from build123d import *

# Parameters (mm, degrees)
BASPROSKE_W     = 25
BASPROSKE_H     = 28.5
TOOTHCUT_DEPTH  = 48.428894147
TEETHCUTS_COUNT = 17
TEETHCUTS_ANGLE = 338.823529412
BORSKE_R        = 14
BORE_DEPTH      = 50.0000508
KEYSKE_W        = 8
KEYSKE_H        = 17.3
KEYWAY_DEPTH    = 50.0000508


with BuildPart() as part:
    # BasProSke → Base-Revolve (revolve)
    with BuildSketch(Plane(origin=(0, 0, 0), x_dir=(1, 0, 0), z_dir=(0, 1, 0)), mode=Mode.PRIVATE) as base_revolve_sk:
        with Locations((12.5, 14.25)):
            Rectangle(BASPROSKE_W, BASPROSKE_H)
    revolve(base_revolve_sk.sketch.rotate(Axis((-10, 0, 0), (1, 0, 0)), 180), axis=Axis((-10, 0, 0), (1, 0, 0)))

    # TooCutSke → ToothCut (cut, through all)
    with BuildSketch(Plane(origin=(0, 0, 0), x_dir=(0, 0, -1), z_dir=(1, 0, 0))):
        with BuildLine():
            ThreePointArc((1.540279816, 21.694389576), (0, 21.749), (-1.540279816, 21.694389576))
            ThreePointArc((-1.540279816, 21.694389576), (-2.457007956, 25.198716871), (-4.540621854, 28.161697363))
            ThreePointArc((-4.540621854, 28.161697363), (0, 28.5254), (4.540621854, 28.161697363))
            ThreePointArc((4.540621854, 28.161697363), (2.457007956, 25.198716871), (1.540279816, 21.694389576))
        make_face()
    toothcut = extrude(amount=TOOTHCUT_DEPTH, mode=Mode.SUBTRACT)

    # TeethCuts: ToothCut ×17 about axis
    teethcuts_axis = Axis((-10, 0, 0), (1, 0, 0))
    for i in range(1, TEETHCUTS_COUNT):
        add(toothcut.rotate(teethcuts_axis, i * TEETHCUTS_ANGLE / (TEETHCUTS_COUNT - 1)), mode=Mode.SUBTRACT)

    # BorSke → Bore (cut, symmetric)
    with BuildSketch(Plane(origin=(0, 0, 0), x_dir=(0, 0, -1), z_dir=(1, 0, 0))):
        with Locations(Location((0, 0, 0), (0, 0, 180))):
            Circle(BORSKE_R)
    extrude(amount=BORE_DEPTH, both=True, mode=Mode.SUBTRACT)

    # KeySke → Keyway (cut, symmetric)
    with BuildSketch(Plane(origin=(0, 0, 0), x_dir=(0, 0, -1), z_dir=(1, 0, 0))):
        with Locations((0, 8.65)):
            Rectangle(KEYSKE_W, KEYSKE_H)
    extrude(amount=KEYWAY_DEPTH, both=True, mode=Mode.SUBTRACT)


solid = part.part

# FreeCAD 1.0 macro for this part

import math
import FreeCAD as App
import Part
import Sketcher

V = App.Vector

doc = App.newDocument("Part")
body = doc.addObject("PartDesign::Body", "Body")

sketch1 = body.newObject("Sketcher::SketchObject", "Sketch")
sketch1.AttachmentSupport = (doc.getObject("XZ_Plane"), [""])
sketch1.MapMode = "FlatFace"
sketch1.addGeometry(Part.LineSegment(V(0, -28, 0), V(0, 0, 0)), False)
sketch1.addGeometry(Part.LineSegment(V(0, 0, 0), V(25, 0, 0)), False)
sketch1.addGeometry(Part.LineSegment(V(25, 0, 0), V(25, -28, 0)), False)
sketch1.addGeometry(Part.LineSegment(V(25, -28, 0), V(0, -28, 0)), False)
sketch1.addConstraint(Sketcher.Constraint("Coincident", 0, 2, 1, 1))
sketch1.addConstraint(Sketcher.Constraint("Coincident", 1, 2, 2, 1))
sketch1.addConstraint(Sketcher.Constraint("Coincident", 2, 2, 3, 1))
sketch1.addConstraint(Sketcher.Constraint("Coincident", 3, 2, 0, 1))
sketch1.addConstraint(Sketcher.Constraint("Vertical", 0))
sketch1.addConstraint(Sketcher.Constraint("Horizontal", 1))
sketch1.addConstraint(Sketcher.Constraint("Vertical", 2))
sketch1.addConstraint(Sketcher.Constraint("Horizontal", 3))
sketch1.addConstraint(Sketcher.Constraint("Coincident", 0, 2, -1, 1))
sketch1.addConstraint(Sketcher.Constraint("DistanceX", 1, 1, 1, 2, 25.0))
sketch1.addConstraint(Sketcher.Constraint("DistanceY", 0, 1, 0, 2, 28.5))
revolution = body.newObject("PartDesign::Revolution", "Revolution")
revolution.Profile = sketch1
revolution.ReferenceAxis = (sketch1, ["H_Axis"])
revolution.Angle = 360

sketch2 = body.newObject("Sketcher::SketchObject", "Sketch001")
sketch2.AttachmentSupport = (doc.getObject("YZ_Plane"), [""])
sketch2.MapMode = "FlatFace"
sketch2.addGeometry(Part.ArcOfCircle(Part.Circle(V(0, 0, 0), V(0, 0, 1), 21.7), math.radians(-4.06), math.radians(4.06)), False)
sketch2.addGeometry(Part.ArcOfCircle(Part.Circle(V(20.9, -11.7, 0), V(0, 0, 1), 10.2), math.radians(45), math.radians(86)), False)
sketch2.addGeometry(Part.ArcOfCircle(Part.Circle(V(0, 0, 0), V(0, 0, 1), 28.5), math.radians(-9.16), math.radians(9.16)), False)
sketch2.addGeometry(Part.ArcOfCircle(Part.Circle(V(20.9, 11.7, 0), V(0, 0, 1), 10.2), math.radians(-86), math.radians(-45)), False)
sketch2.addConstraint(Sketcher.Constraint("Coincident", 0, 1, 1, 2))
sketch2.addConstraint(Sketcher.Constraint("Coincident", 1, 1, 2, 1))
sketch2.addConstraint(Sketcher.Constraint("Coincident", 2, 2, 3, 2))
sketch2.addConstraint(Sketcher.Constraint("Coincident", 3, 1, 0, 2))
sketch2.addConstraint(Sketcher.Constraint("Coincident", 0, 3, -1, 1))
sketch2.addConstraint(Sketcher.Constraint("Coincident", 2, 3, -1, 1))
sketch2.addConstraint(Sketcher.Constraint("Equal", 1, 3))
sketch2.addConstraint(Sketcher.Constraint("Symmetric", 1, 3, 3, 3, -1))
sketch2.addConstraint(Sketcher.Constraint("Radius", 1, 10.2))
sketch2.addConstraint(Sketcher.Constraint("Radius", 0, 21.749))
sketch2.addConstraint(Sketcher.Constraint("Radius", 2, 28.5254))
sketch2.addConstraint(Sketcher.Constraint("DistanceY", 0, 1, 2, 2, 6.080902))
sketch2.addConstraint(Sketcher.Constraint("DistanceX", -1, 1, 1, 3, 20.906132))
pocket1 = body.newObject("PartDesign::Pocket", "Pocket")
pocket1.Profile = sketch2
pocket1.Type = "ThroughAll"
pocket1.Reversed = True
doc.recompute()

polarpattern = body.newObject("PartDesign::PolarPattern", "PolarPattern")
polarpattern.Originals = [pocket1]
polarpattern.Axis = (doc.getObject("X_Axis"), [""])
polarpattern.Angle = 360
polarpattern.Occurrences = 17
body.Tip = polarpattern

sketch3 = body.newObject("Sketcher::SketchObject", "Sketch002")
sketch3.AttachmentSupport = (doc.getObject("YZ_Plane"), [""])
sketch3.MapMode = "FlatFace"
sketch3.addGeometry(Part.Circle(V(0, 0, 0), V(0, 0, 1), 14), False)
sketch3.addConstraint(Sketcher.Constraint("Coincident", 0, 3, -1, 1))
sketch3.addConstraint(Sketcher.Constraint("Diameter", 0, 28.0))
pocket2 = body.newObject("PartDesign::Pocket", "Pocket001")
pocket2.Profile = sketch3
pocket2.Length = 100.000102
pocket2.Midplane = True

sketch4 = body.newObject("Sketcher::SketchObject", "Sketch003")
sketch4.AttachmentSupport = (doc.getObject("YZ_Plane"), [""])
sketch4.MapMode = "FlatFace"
sketch4.addGeometry(Part.LineSegment(V(17, 4, 0), V(0, 4, 0)), False)
sketch4.addGeometry(Part.LineSegment(V(0, 4, 0), V(0, -4, 0)), False)
sketch4.addGeometry(Part.LineSegment(V(0, -4, 0), V(17, -4, 0)), False)
sketch4.addGeometry(Part.LineSegment(V(17, -4, 0), V(17, 4, 0)), False)
sketch4.addConstraint(Sketcher.Constraint("Coincident", 0, 2, 1, 1))
sketch4.addConstraint(Sketcher.Constraint("Coincident", 1, 2, 2, 1))
sketch4.addConstraint(Sketcher.Constraint("Coincident", 2, 2, 3, 1))
sketch4.addConstraint(Sketcher.Constraint("Coincident", 3, 2, 0, 1))
sketch4.addConstraint(Sketcher.Constraint("Horizontal", 0))
sketch4.addConstraint(Sketcher.Constraint("Vertical", 1))
sketch4.addConstraint(Sketcher.Constraint("Horizontal", 2))
sketch4.addConstraint(Sketcher.Constraint("Vertical", 3))
sketch4.addConstraint(Sketcher.Constraint("Symmetric", 0, 2, 1, 2, -1, 1))
sketch4.addConstraint(Sketcher.Constraint("DistanceY", 1, 2, 1, 1, 8.0))
sketch4.addConstraint(Sketcher.Constraint("DistanceX", 0, 2, 0, 1, 17.3))
pocket3 = body.newObject("PartDesign::Pocket", "Pocket002")
pocket3.Profile = sketch4
pocket3.Length = 100.000102
pocket3.Midplane = True

doc.recompute()
